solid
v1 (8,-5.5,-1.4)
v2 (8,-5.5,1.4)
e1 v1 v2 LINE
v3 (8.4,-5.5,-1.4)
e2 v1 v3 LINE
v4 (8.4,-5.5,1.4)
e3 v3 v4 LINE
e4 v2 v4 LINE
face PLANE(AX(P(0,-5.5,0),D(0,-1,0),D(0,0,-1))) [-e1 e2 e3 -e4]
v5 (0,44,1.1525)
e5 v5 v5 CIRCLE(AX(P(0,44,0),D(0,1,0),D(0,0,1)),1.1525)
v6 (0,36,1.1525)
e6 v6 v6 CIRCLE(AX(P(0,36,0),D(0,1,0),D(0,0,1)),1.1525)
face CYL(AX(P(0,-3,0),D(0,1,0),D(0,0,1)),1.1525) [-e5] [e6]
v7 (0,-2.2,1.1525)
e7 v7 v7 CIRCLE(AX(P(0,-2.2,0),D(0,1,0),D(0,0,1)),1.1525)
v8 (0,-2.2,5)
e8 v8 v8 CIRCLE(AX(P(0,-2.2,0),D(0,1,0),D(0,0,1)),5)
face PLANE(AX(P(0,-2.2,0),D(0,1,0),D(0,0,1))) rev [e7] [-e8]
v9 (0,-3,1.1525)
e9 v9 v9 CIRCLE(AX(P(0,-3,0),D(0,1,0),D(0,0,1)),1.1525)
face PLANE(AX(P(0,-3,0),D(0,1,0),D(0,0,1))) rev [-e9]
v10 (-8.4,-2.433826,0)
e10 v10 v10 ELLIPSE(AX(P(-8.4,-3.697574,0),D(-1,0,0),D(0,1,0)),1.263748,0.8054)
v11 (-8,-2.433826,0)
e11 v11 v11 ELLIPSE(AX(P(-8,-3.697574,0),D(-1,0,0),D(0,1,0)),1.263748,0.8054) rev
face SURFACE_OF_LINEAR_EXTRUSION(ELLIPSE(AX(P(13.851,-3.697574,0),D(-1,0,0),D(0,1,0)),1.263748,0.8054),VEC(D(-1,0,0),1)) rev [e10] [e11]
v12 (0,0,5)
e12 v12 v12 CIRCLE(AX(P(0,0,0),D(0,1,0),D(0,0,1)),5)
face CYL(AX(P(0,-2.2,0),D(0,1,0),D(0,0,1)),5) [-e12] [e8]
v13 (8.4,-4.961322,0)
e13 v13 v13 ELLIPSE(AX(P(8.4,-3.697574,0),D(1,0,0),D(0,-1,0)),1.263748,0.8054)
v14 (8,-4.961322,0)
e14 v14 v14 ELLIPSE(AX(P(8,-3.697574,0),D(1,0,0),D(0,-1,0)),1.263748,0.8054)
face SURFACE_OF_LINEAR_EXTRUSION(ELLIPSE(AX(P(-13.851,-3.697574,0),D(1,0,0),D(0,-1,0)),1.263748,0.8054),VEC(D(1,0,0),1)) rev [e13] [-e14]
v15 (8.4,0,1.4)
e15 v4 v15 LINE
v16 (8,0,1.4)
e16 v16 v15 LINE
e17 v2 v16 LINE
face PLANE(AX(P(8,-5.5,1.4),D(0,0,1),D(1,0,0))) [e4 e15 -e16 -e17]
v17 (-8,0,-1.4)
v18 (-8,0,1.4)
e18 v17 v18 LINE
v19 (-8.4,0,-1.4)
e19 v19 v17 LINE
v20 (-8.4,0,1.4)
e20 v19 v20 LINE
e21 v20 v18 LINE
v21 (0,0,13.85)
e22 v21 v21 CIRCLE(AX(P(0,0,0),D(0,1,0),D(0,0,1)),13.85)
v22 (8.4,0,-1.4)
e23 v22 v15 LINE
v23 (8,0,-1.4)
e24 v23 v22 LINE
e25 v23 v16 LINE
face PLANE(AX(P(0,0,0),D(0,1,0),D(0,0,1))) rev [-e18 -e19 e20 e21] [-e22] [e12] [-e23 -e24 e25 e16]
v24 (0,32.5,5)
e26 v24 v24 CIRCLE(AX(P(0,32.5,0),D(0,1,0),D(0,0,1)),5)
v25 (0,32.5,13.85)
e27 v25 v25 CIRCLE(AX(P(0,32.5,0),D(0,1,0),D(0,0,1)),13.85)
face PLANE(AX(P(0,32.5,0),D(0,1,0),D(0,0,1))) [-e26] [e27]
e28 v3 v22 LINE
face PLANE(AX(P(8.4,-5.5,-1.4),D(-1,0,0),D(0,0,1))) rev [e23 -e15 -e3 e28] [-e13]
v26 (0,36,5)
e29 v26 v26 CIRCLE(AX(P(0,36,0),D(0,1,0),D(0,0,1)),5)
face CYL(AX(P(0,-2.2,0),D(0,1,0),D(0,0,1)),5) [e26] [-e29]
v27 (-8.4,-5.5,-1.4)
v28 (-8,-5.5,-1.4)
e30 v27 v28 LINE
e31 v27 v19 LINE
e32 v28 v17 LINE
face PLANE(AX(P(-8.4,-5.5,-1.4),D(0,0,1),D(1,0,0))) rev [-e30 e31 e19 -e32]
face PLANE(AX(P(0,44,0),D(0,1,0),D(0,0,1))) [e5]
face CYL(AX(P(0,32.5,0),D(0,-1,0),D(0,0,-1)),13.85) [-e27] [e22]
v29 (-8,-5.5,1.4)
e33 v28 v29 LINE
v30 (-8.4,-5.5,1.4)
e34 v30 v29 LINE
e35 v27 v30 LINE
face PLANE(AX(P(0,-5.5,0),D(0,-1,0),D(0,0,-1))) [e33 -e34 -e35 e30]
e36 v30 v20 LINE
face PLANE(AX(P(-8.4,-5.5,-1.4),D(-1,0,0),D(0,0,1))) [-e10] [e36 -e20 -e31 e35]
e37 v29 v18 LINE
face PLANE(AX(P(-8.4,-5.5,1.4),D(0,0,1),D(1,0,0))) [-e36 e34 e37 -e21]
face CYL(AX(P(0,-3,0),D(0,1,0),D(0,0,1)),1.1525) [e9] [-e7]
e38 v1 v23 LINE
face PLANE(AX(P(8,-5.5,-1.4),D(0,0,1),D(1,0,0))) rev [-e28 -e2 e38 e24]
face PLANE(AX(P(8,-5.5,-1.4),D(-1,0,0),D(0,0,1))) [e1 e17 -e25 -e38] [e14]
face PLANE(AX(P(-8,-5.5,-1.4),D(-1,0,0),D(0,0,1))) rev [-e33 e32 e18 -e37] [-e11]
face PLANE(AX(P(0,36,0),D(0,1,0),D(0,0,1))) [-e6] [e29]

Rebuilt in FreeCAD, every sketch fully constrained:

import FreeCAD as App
import Part
import Sketcher

V = App.Vector
Q = App.Units.Quantity


def add_polygon(sketch, points):
    """Adds a closed chain of lines whose ends are joined by coincident constraints."""
    first, n = sketch.GeometryCount, len(points)
    for a, b in zip(points, points[1:] + points[:1]):
        sketch.addGeometry(Part.LineSegment(App.Vector(*a, 0), App.Vector(*b, 0)), False)
    for i in range(n):
        sketch.addConstraint(Sketcher.Constraint("Coincident", first + i, 2, first + (i + 1) % n, 1))

doc = App.newDocument("Part")
body = doc.addObject("PartDesign::Body", "Body")

sketch1 = body.newObject("Sketcher::SketchObject", "Sketch")
sketch1.AttachmentSupport = (doc.getObject("XZ_Plane"), [""])
sketch1.MapMode = "FlatFace"
sketch1.addGeometry(Part.Circle(V(0, 0, 0), V(0, 0, 1), 14), False)
sketch1.addConstraint([
    Sketcher.Constraint("Coincident", 0, 3, -1, 1),
    Sketcher.Constraint("Diameter", 0, Q("27.7 mm")),
])
pad1 = body.newObject("PartDesign::Pad", "Pad")
pad1.Profile = sketch1
pad1.Length = 32.5
pad1.Reversed = True

sketch2 = body.newObject("Sketcher::SketchObject", "Sketch001")
sketch2.AttachmentSupport = (doc.getObject("XZ_Plane"), [""])
sketch2.MapMode = "FlatFace"
sketch2.addGeometry(Part.Circle(V(0, 0, 0), V(0, 0, 1), 5), False)
sketch2.addConstraint([
    Sketcher.Constraint("Coincident", 0, 3, -1, 1),
    Sketcher.Constraint("Diameter", 0, Q("10 mm")),
])
pad2 = body.newObject("PartDesign::Pad", "Pad001")
pad2.Profile = sketch2
pad2.Type = "TwoLengths"
pad2.Length = 36
pad2.Length2 = 2.2
pad2.Reversed = True

sketch3 = body.newObject("Sketcher::SketchObject", "Sketch002")
sketch3.AttachmentSupport = (doc.getObject("XZ_Plane"), [""])
sketch3.MapMode = "FlatFace"
sketch3.addGeometry(Part.Circle(V(0, 0, 0), V(0, 0, 1), 1.2), False)
sketch3.addConstraint([
    Sketcher.Constraint("Coincident", 0, 3, -1, 1),
    Sketcher.Constraint("Diameter", 0, Q("2.305 mm")),
])
pad3 = body.newObject("PartDesign::Pad", "Pad002")
pad3.Profile = sketch3
pad3.Type = "TwoLengths"
pad3.Length = 44
pad3.Length2 = 3
pad3.Reversed = True

sketch4 = body.newObject("Sketcher::SketchObject", "Sketch003")
sketch4.AttachmentSupport = (doc.getObject("XZ_Plane"), [""])
sketch4.MapMode = "FlatFace"
add_polygon(sketch4, [(-8.4, -1.4), (-8.4, 1.4), (-8, 1.4), (-8, -1.4)])
add_polygon(sketch4, [(8, -1.4), (8, 1.4), (8.4, 1.4), (8.4, -1.4)])
sketch4.addConstraint([
    Sketcher.Constraint("Vertical", 0),
    Sketcher.Constraint("Horizontal", 1),
    Sketcher.Constraint("Vertical", 2),
    Sketcher.Constraint("Horizontal", 3),
    Sketcher.Constraint("Vertical", 4),
    Sketcher.Constraint("Horizontal", 5),
    Sketcher.Constraint("Vertical", 6),
    Sketcher.Constraint("Horizontal", 7),
    Sketcher.Constraint("Symmetric", 2, 2, 4, 2, -1, 1),
    Sketcher.Constraint("Symmetric", 0, 2, 6, 2, -1, 1),
    Sketcher.Constraint("Horizontal", 1, 2, 4, 2),
    Sketcher.Constraint("DistanceX", 1, 1, 1, 2, Q("0.4 mm")),
    Sketcher.Constraint("DistanceY", 0, 1, 0, 2, Q("2.8 mm")),
    Sketcher.Constraint("DistanceX", 1, 2, -1, 1, Q("8 mm")),
])
pad4 = body.newObject("PartDesign::Pad", "Pad003")
pad4.Profile = sketch4
pad4.Length = 5.5

sketch5 = body.newObject("Sketcher::SketchObject", "Sketch004")
sketch5.AttachmentSupport = (doc.getObject("YZ_Plane"), [""])
sketch5.MapMode = "FlatFace"
sketch5.AttachmentOffset = App.Placement(V(0, 0, -8.4), App.Rotation())
sketch5.addGeometry(Part.Ellipse(V(-2.433826, 0, 0), V(-3.697574, 0.8054, 0), V(-3.697574, 0, 0)), False)
sketch5.addConstraint(Sketcher.Constraint("Block", 0))
pocket1 = body.newObject("PartDesign::Pocket", "Pocket")
pocket1.Profile = sketch5
pocket1.Type = "UpToFirst"
pocket1.Reversed = True

sketch6 = body.newObject("Sketcher::SketchObject", "Sketch005")
sketch6.AttachmentSupport = (doc.getObject("YZ_Plane"), [""])
sketch6.MapMode = "FlatFace"
sketch6.AttachmentOffset = App.Placement(V(0, 0, 8.4), App.Rotation())
sketch6.addGeometry(Part.Ellipse(V(-4.961322, 0, 0), V(-3.697574, -0.8054, 0), V(-3.697574, 0, 0)), False)
sketch6.addConstraint(Sketcher.Constraint("Block", 0))
pocket2 = body.newObject("PartDesign::Pocket", "Pocket001")
pocket2.Profile = sketch6
pocket2.Type = "UpToFirst"

doc.recompute()
